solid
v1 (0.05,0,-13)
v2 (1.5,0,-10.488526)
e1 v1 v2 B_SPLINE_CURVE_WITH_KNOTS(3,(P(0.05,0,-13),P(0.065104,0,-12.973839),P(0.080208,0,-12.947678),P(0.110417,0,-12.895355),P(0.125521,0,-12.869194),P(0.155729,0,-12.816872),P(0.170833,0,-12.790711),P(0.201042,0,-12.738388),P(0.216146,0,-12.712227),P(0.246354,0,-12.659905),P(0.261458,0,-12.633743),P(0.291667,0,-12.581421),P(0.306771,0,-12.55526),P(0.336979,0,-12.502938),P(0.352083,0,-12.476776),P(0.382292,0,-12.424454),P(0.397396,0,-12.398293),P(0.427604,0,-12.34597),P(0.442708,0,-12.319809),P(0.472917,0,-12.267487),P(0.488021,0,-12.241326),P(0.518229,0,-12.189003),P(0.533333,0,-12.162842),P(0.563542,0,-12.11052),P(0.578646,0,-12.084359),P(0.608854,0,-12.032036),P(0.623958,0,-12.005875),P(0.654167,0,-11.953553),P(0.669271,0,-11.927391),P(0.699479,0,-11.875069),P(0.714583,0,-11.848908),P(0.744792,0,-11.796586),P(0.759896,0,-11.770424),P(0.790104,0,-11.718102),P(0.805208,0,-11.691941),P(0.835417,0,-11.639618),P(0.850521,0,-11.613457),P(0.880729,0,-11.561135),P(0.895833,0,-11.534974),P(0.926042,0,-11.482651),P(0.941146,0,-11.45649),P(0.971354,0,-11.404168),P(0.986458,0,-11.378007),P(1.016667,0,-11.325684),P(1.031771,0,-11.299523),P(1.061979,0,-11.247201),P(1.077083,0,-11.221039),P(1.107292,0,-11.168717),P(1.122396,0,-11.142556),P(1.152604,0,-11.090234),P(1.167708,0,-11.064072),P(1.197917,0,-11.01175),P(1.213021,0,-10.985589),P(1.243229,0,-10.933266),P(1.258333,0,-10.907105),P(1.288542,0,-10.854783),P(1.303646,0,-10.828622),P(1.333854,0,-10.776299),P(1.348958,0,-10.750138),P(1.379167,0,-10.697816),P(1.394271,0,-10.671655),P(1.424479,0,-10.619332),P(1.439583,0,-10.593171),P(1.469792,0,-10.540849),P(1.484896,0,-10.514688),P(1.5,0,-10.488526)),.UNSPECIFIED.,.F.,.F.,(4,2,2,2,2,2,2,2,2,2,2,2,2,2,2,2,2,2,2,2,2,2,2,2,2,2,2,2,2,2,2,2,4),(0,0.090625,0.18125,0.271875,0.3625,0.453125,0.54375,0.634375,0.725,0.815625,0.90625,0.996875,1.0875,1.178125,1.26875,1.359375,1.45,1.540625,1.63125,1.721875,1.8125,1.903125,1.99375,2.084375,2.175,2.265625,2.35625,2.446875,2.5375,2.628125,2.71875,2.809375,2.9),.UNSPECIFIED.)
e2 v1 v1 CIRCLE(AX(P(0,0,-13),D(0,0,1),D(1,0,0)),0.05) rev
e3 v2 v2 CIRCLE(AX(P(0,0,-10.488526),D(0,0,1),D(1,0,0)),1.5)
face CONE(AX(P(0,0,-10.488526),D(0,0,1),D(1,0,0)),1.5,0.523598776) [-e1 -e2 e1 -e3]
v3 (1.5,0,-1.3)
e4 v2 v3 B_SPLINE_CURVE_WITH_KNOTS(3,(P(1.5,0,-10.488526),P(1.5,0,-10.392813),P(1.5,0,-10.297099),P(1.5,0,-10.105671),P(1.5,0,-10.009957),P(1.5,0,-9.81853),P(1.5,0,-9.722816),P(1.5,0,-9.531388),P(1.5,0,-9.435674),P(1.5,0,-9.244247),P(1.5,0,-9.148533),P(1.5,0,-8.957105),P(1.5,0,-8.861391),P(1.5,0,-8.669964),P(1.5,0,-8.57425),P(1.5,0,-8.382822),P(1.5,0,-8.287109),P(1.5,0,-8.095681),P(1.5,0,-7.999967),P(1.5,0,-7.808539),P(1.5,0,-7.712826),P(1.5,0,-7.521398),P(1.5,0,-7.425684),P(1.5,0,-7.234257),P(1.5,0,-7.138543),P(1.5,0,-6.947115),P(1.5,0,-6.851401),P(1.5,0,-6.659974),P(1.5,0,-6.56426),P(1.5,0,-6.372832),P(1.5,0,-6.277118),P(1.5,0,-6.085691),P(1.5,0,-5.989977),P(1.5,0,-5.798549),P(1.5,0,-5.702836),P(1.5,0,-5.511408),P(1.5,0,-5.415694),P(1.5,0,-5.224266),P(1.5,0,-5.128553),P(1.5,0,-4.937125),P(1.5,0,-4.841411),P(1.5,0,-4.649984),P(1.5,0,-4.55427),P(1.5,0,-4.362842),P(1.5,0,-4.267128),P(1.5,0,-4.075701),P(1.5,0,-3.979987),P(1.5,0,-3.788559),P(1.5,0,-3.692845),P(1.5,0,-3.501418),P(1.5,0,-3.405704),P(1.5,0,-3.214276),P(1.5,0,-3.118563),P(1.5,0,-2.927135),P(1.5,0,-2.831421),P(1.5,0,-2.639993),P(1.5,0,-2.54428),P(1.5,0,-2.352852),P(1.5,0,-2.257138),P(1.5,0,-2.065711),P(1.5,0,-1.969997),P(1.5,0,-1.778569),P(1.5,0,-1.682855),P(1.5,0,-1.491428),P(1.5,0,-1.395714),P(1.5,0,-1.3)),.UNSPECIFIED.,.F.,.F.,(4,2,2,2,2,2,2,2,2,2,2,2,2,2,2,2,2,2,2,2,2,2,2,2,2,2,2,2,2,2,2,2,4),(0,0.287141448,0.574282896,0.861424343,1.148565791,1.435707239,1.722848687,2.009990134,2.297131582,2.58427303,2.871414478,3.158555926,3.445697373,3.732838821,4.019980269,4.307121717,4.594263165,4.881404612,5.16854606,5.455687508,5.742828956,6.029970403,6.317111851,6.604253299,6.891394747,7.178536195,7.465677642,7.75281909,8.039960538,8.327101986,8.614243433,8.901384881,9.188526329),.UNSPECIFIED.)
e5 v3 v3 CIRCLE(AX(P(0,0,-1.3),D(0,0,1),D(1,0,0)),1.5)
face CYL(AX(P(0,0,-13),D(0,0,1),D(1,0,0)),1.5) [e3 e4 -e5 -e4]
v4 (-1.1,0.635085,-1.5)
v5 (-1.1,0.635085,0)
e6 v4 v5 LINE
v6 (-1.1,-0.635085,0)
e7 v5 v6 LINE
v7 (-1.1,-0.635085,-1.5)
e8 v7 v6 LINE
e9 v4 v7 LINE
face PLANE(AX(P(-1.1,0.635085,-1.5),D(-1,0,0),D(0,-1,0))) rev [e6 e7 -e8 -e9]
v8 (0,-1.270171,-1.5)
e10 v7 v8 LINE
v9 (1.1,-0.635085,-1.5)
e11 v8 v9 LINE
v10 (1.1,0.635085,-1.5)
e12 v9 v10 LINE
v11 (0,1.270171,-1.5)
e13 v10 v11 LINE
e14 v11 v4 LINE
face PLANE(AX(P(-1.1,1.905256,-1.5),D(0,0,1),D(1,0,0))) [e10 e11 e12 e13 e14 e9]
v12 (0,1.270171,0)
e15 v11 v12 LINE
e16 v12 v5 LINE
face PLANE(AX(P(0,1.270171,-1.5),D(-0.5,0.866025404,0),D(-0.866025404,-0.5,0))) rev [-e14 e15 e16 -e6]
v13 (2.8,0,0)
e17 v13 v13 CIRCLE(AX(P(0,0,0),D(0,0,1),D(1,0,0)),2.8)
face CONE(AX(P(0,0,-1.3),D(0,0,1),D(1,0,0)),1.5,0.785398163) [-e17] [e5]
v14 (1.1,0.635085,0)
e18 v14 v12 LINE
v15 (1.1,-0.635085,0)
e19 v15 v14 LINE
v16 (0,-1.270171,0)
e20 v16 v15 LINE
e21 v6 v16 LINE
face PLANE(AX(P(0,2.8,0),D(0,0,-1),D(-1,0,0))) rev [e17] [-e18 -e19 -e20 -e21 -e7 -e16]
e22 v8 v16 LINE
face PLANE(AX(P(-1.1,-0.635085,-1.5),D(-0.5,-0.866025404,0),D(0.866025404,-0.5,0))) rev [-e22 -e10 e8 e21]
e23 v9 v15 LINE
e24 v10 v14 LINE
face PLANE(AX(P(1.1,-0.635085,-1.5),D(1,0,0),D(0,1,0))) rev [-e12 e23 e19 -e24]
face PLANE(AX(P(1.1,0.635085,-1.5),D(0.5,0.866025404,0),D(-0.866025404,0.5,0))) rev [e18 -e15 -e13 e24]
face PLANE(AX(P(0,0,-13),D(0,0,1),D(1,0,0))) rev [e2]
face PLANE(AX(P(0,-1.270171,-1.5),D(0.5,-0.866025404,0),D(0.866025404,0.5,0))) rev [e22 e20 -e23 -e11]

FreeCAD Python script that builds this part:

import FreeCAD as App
import Part
import Sketcher
from FreeCAD import Vector
Q = App.Units.Quantity


def edges_at(feature, points):
    """Names of the edges that pass closest to the given points."""
    edges = feature.Shape.Edges
    near = lambda p: min(range(len(edges)), key=lambda i: edges[i].distToShape(Part.Vertex(*p))[0])
    return sorted({f"Edge{near(p) + 1}" for p in points})


def add_polygon(sketch, points):
    """Adds a closed chain of lines whose ends are joined by coincident constraints."""
    first, n = sketch.GeometryCount, len(points)
    for a, b in zip(points, points[1:] + points[:1]):
        sketch.addGeometry(Part.LineSegment(App.Vector(*a, 0), App.Vector(*b, 0)), False)
    for i in range(n):
        sketch.addConstraint(Sketcher.Constraint("Coincident", first + i, 2, first + (i + 1) % n, 1))

doc = App.newDocument("Part")
body = doc.addObject("PartDesign::Body", "Body")

# Sketch on YZ plane
sketch1 = doc.addObject("Sketcher::SketchObject", "Sketch")
body.addObject(sketch1)
sketch1.AttachmentSupport = (doc.YZ_Plane, [""])
sketch1.MapMode = "FlatFace"
add_polygon(sketch1, [(1.5, -1.3), (2.8, 0), (0, 0), (0, -1.3)])  # lines 0-3
sketch1.addConstraint([
    Sketcher.Constraint("Horizontal", 1),
    Sketcher.Constraint("Vertical", 2),
    Sketcher.Constraint("Horizontal", 3),
    Sketcher.Constraint("Coincident", 1, 2, -1, 1),
    Sketcher.Constraint("Angle", 0, Q("45 deg")),
    Sketcher.Constraint("DistanceX", 1, 2, 1, 1, Q("2.8 mm")),
    Sketcher.Constraint("DistanceX", 3, 1, 3, 2, Q("1.5 mm")),
])
revolution = doc.addObject("PartDesign::Revolution", "Revolution")
body.addObject(revolution)
revolution.Profile = sketch1
revolution.ReferenceAxis = (sketch1, ["V_Axis"])
revolution.Angle = 360

# Sketch on XY plane
sketch2 = doc.addObject("Sketcher::SketchObject", "Sketch001")
body.addObject(sketch2)
sketch2.AttachmentSupport = (doc.XY_Plane, [""])
sketch2.MapMode = "FlatFace"
sketch2.addGeometry(Part.Circle(Vector(0, 0, 0), Vector(0, 0, 1), 1.5), False)
sketch2.addConstraint([
    Sketcher.Constraint("Coincident", 0, 3, -1, 1),
    Sketcher.Constraint("Diameter", 0, Q("3 mm")),
])
pad1 = doc.addObject("PartDesign::Pad", "Pad")
body.addObject(pad1)
pad1.Profile = sketch2
pad1.Length = 13
pad1.Reversed = True

# Sketch on XY plane
sketch3 = doc.addObject("Sketcher::SketchObject", "Sketch002")
body.addObject(sketch3)
sketch3.AttachmentSupport = (doc.XY_Plane, [""])
sketch3.MapMode = "FlatFace"
add_polygon(sketch3, [(0, 1.3), (-1.1, 0.6), (-1.1, -0.6), (0, -1.3), (1.1, -0.6), (1.1, 0.6)])  # lines 0-5
sketch3.addConstraint([
    Sketcher.Constraint("Vertical", 1),
    Sketcher.Constraint("Vertical", 4),
    Sketcher.Constraint("Symmetric", 0, 2, 3, 2, -1, 1),
    Sketcher.Constraint("Symmetric", 2, 2, 5, 2, -1, 1),
    Sketcher.Constraint("PointOnObject", 2, 2, -2),
    Sketcher.Constraint("Parallel", 2, 5),
    Sketcher.Constraint("Horizontal", 1, 2, 3, 2),
    Sketcher.Constraint("Angle", 0, Q("-150 deg")),
    Sketcher.Constraint("DistanceX", 0, 2, -1, 1, Q("1.1 mm")),
    Sketcher.Constraint("DistanceY", 1, 2, 1, 1, Q("1.270171 mm")),
])
pocket1 = doc.addObject("PartDesign::Pocket", "Pocket")
body.addObject(pocket1)
pocket1.Profile = sketch3
pocket1.Length = 1.5
doc.recompute()

chamfer = doc.addObject("PartDesign::Chamfer", "Chamfer")
body.addObject(chamfer)
chamfer.Base = (pocket1, edges_at(pocket1, [(-1.5, 0, -13)]))
chamfer.ChamferType = "Two distances"
chamfer.Size = 1.45
chamfer.Size2 = 2.511474
chamfer.FlipDirection = True

doc.recompute()
